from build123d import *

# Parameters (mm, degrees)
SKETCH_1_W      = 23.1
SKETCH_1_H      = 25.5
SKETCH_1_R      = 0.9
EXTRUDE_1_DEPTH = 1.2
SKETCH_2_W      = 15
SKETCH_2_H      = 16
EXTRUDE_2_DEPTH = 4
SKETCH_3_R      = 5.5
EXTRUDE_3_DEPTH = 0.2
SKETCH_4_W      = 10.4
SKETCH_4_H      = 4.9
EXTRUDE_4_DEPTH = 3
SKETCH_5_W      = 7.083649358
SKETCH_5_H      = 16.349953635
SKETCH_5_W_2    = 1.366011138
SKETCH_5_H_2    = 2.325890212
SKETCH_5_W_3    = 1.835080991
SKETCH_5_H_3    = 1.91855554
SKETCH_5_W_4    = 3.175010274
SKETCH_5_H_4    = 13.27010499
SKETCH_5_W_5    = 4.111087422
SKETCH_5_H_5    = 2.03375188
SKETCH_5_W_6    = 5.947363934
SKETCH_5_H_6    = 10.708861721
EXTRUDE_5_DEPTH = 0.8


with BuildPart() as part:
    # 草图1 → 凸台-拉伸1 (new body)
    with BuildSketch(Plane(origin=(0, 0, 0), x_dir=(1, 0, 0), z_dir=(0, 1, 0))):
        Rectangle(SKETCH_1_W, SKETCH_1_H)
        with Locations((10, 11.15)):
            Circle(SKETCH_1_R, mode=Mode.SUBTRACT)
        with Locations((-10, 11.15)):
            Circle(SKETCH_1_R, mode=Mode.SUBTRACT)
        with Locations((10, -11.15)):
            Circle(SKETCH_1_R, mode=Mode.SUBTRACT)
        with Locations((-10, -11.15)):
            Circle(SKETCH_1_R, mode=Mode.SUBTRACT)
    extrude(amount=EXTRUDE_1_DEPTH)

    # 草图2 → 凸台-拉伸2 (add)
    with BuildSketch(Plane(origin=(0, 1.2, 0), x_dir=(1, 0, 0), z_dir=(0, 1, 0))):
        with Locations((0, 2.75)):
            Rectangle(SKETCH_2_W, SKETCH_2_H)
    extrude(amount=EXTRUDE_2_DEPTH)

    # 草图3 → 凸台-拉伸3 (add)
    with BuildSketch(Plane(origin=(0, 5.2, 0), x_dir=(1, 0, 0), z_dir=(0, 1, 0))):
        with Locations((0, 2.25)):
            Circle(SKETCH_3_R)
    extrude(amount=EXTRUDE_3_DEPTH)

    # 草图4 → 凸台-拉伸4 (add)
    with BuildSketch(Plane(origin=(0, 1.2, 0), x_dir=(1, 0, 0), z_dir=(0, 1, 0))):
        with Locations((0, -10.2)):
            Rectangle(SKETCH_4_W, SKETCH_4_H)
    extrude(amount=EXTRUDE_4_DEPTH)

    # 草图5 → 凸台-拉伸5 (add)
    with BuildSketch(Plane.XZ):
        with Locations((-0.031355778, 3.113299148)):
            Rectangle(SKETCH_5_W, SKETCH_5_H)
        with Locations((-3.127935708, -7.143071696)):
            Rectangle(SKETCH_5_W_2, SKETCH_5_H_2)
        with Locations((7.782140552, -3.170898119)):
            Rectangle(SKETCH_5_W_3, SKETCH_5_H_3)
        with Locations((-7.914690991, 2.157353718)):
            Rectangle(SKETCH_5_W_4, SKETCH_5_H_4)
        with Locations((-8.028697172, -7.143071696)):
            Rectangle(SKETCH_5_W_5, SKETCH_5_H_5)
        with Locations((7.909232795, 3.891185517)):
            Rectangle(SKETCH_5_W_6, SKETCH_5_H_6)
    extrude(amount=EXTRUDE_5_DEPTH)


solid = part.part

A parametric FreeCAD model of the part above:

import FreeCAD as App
import Part
import Sketcher
from FreeCAD import Vector


def add_polygon(sketch, points):
    """Adds a closed chain of lines whose ends are joined by coincident constraints."""
    first, n = sketch.GeometryCount, len(points)
    for a, b in zip(points, points[1:] + points[:1]):
        sketch.addGeometry(Part.LineSegment(App.Vector(*a, 0), App.Vector(*b, 0)), False)
    for i in range(n):
        sketch.addConstraint(Sketcher.Constraint("Coincident", first + i, 2, first + (i + 1) % n, 1))

doc = App.newDocument("Part")
params = doc.addObject("Spreadsheet::Sheet", "Params")
for row, (alias, value) in enumerate([
    ("sketch1_diameter", "1.8 mm"),
    ("sketch1_width", "23.1 mm"),
    ("sketch1_height", "25.5 mm"),
    ("pad1_length", "1.2 mm"),
    ("sketch2_width", "15 mm"),
    ("sketch2_height", "16 mm"),
    ("pad2_length", "4 mm"),
    ("sketch3_diameter", "11 mm"),
    ("pad3_length", "0.2 mm"),
    ("sketch4_width", "10.4 mm"),
    ("sketch4_height", "4.9 mm"),
    ("pad4_length", "3 mm"),
    ("pad5_length", "0.8 mm"),
], start=1):
    params.set(f"A{row}", alias)
    params.set(f"B{row}", "=" + value)
    params.setAlias(f"B{row}", alias)

body = doc.addObject("PartDesign::Body", "Body")

# Sketch on XZ plane
sketch1 = doc.addObject("Sketcher::SketchObject", "Sketch")
body.addObject(sketch1)
sketch1.AttachmentSupport = (doc.XZ_Plane, [""])
sketch1.MapMode = "FlatFace"
add_polygon(sketch1, [(-11.55, -12.75), (-11.55, 12.75), (11.55, 12.75), (11.55, -12.75)])  # lines 0-3
sketch1.addGeometry(Part.Circle(Vector(-10, 11.15, 0), Vector(0, 0, 1), 0.9), False)  # 4
sketch1.addGeometry(Part.Circle(Vector(10, 11.15, 0), Vector(0, 0, 1), 0.9), False)  # 5
sketch1.addGeometry(Part.Circle(Vector(-10, -11.15, 0), Vector(0, 0, 1), 0.9), False)  # 6
sketch1.addGeometry(Part.Circle(Vector(10, -11.15, 0), Vector(0, 0, 1), 0.9), False)  # 7
sketch1.addConstraint(Sketcher.Constraint("Vertical", 0))
sketch1.addConstraint(Sketcher.Constraint("Horizontal", 1))
sketch1.addConstraint(Sketcher.Constraint("Vertical", 2))
sketch1.addConstraint(Sketcher.Constraint("Horizontal", 3))
sketch1.addConstraint(Sketcher.Constraint("Equal", 4, 5))
sketch1.addConstraint(Sketcher.Constraint("Equal", 5, 6))
sketch1.addConstraint(Sketcher.Constraint("Equal", 6, 7))
sketch1.addConstraint(Sketcher.Constraint("Symmetric", 5, 3, 6, 3, -1, 1))
sketch1.addConstraint(Sketcher.Constraint("Symmetric", 4, 3, 7, 3, -1, 1))
sketch1.addConstraint(Sketcher.Constraint("Symmetric", 0, 2, 2, 2, -1, 1))
sketch1.addConstraint(Sketcher.Constraint("Symmetric", 4, 3, 5, 3, -2))
sketch1.addConstraint(Sketcher.Constraint("Diameter", 4, 1.8))
sketch1.addConstraint(Sketcher.Constraint("DistanceX", 1, 1, 1, 2, 23.1))
sketch1.addConstraint(Sketcher.Constraint("DistanceY", 0, 1, 0, 2, 25.5))
sketch1.addConstraint(Sketcher.Constraint("DistanceX", 4, 3, -1, 1, 10.0))
sketch1.addConstraint(Sketcher.Constraint("DistanceY", 6, 3, 4, 3, 22.3))
sketch1.setExpression("Constraints[15]", "Params.sketch1_diameter")
sketch1.setExpression("Constraints[16]", "Params.sketch1_width")
sketch1.setExpression("Constraints[17]", "Params.sketch1_height")
pad1 = doc.addObject("PartDesign::Pad", "Pad")
body.addObject(pad1)
pad1.Profile = sketch1
pad1.setExpression("Length", "Params.pad1_length")
pad1.Reversed = True

# Sketch on XZ plane
sketch2 = doc.addObject("Sketcher::SketchObject", "Sketch001")
body.addObject(sketch2)
sketch2.AttachmentSupport = (doc.XZ_Plane, [""])
sketch2.MapMode = "FlatFace"
sketch2.AttachmentOffset = App.Placement(Vector(0, 0, -1.2), App.Rotation())
add_polygon(sketch2, [(-7.5, -10.75), (-7.5, 5.25), (7.5, 5.25), (7.5, -10.75)])  # lines 0-3
sketch2.addConstraint(Sketcher.Constraint("Vertical", 0))
sketch2.addConstraint(Sketcher.Constraint("Horizontal", 1))
sketch2.addConstraint(Sketcher.Constraint("Vertical", 2))
sketch2.addConstraint(Sketcher.Constraint("Horizontal", 3))
sketch2.addConstraint(Sketcher.Constraint("DistanceX", 1, 1, 1, 2, 15.0))
sketch2.addConstraint(Sketcher.Constraint("DistanceY", 0, 1, 0, 2, 16.0))
sketch2.addConstraint(Sketcher.Constraint("DistanceX", 0, 2, -1, 1, 7.5))
sketch2.addConstraint(Sketcher.Constraint("DistanceY", -1, 1, 0, 2, 5.25))
sketch2.setExpression("Constraints[8]", "Params.sketch2_width")
sketch2.setExpression("Constraints[9]", "Params.sketch2_height")
pad2 = doc.addObject("PartDesign::Pad", "Pad001")
body.addObject(pad2)
pad2.Profile = sketch2
pad2.setExpression("Length", "Params.pad2_length")
pad2.Reversed = True

# Sketch on XZ plane
sketch3 = doc.addObject("Sketcher::SketchObject", "Sketch002")
body.addObject(sketch3)
sketch3.AttachmentSupport = (doc.XZ_Plane, [""])
sketch3.MapMode = "FlatFace"
sketch3.AttachmentOffset = App.Placement(Vector(0, 0, -5.2), App.Rotation())
sketch3.addGeometry(Part.Circle(Vector(0, -2.25, 0), Vector(0, 0, 1), 5.5), False)
sketch3.addConstraint(Sketcher.Constraint("PointOnObject", 0, 3, -2))
sketch3.addConstraint(Sketcher.Constraint("Diameter", 0, 11.0))
sketch3.addConstraint(Sketcher.Constraint("DistanceY", 0, 3, -1, 1, 2.25))
sketch3.setExpression("Constraints[1]", "Params.sketch3_diameter")
pad3 = doc.addObject("PartDesign::Pad", "Pad002")
body.addObject(pad3)
pad3.Profile = sketch3
pad3.setExpression("Length", "Params.pad3_length")
pad3.Reversed = True

# Sketch on XZ plane
sketch4 = doc.addObject("Sketcher::SketchObject", "Sketch003")
body.addObject(sketch4)
sketch4.AttachmentSupport = (doc.XZ_Plane, [""])
sketch4.MapMode = "FlatFace"
sketch4.AttachmentOffset = App.Placement(Vector(0, 0, -1.2), App.Rotation())
add_polygon(sketch4, [(-5.2, 7.75), (-5.2, 12.65), (5.2, 12.65), (5.2, 7.75)])  # lines 0-3
sketch4.addConstraint(Sketcher.Constraint("Vertical", 0))
sketch4.addConstraint(Sketcher.Constraint("Horizontal", 1))
sketch4.addConstraint(Sketcher.Constraint("Vertical", 2))
sketch4.addConstraint(Sketcher.Constraint("Horizontal", 3))
sketch4.addConstraint(Sketcher.Constraint("DistanceX", 1, 1, 1, 2, 10.4))
sketch4.addConstraint(Sketcher.Constraint("DistanceY", 0, 1, 0, 2, 4.9))
sketch4.addConstraint(Sketcher.Constraint("DistanceX", 0, 2, -1, 1, 5.2))
sketch4.addConstraint(Sketcher.Constraint("DistanceY", -1, 1, 0, 2, 12.65))
sketch4.setExpression("Constraints[8]", "Params.sketch4_width")
sketch4.setExpression("Constraints[9]", "Params.sketch4_height")
pad4 = doc.addObject("PartDesign::Pad", "Pad003")
body.addObject(pad4)
pad4.Profile = sketch4
pad4.setExpression("Length", "Params.pad4_length")
pad4.Reversed = True

# Sketch on XZ plane
sketch5 = doc.addObject("Sketcher::SketchObject", "Sketch004")
body.addObject(sketch5)
sketch5.AttachmentSupport = (doc.XZ_Plane, [""])
sketch5.MapMode = "FlatFace"
add_polygon(sketch5, [(-3.57318, 11.288276), (-3.57318, -5.061678), (3.510469, -5.061678), (3.510469, 11.288276)])  # lines 0-3
add_polygon(sketch5, [(-3.810941, -5.980127), (-3.810941, -8.306017), (-2.44493, -8.306017), (-2.44493, -5.980127)])  # lines 4-7
add_polygon(sketch5, [(6.8646, -2.21162), (6.8646, -4.130176), (8.699681, -4.130176), (8.699681, -2.21162)])  # lines 8-11
add_polygon(sketch5, [(-9.502196, 8.792406), (-9.502196, -4.477699), (-6.327186, -4.477699), (-6.327186, 8.792406)])  # lines 12-15
add_polygon(sketch5, [(-10.084241, -6.126196), (-10.084241, -8.159948), (-5.973153, -8.159948), (-5.973153, -6.126196)])  # lines 16-19
add_polygon(sketch5, [(4.935551, 9.245616), (4.935551, -1.463245), (10.882915, -1.463245), (10.882915, 9.245616)])  # lines 20-23
sketch5.addConstraint(Sketcher.Constraint("Vertical", 0))
sketch5.addConstraint(Sketcher.Constraint("Horizontal", 1))
sketch5.addConstraint(Sketcher.Constraint("Vertical", 2))
sketch5.addConstraint(Sketcher.Constraint("Horizontal", 3))
sketch5.addConstraint(Sketcher.Constraint("Vertical", 4))
sketch5.addConstraint(Sketcher.Constraint("Horizontal", 5))
sketch5.addConstraint(Sketcher.Constraint("Vertical", 6))
sketch5.addConstraint(Sketcher.Constraint("Horizontal", 7))
sketch5.addConstraint(Sketcher.Constraint("Vertical", 8))
sketch5.addConstraint(Sketcher.Constraint("Horizontal", 9))
sketch5.addConstraint(Sketcher.Constraint("Vertical", 10))
sketch5.addConstraint(Sketcher.Constraint("Horizontal", 11))
sketch5.addConstraint(Sketcher.Constraint("Vertical", 12))
sketch5.addConstraint(Sketcher.Constraint("Horizontal", 13))
sketch5.addConstraint(Sketcher.Constraint("Vertical", 14))
sketch5.addConstraint(Sketcher.Constraint("Horizontal", 15))
sketch5.addConstraint(Sketcher.Constraint("Vertical", 16))
sketch5.addConstraint(Sketcher.Constraint("Horizontal", 17))
sketch5.addConstraint(Sketcher.Constraint("Vertical", 18))
sketch5.addConstraint(Sketcher.Constraint("Horizontal", 19))
sketch5.addConstraint(Sketcher.Constraint("Vertical", 20))
sketch5.addConstraint(Sketcher.Constraint("Horizontal", 21))
sketch5.addConstraint(Sketcher.Constraint("Vertical", 22))
sketch5.addConstraint(Sketcher.Constraint("Horizontal", 23))
sketch5.addConstraint(Sketcher.Constraint("DistanceX", 1, 1, 1, 2, 7.083649))
sketch5.addConstraint(Sketcher.Constraint("DistanceX", 5, 1, 5, 2, 1.366011))
sketch5.addConstraint(Sketcher.Constraint("DistanceX", 9, 1, 9, 2, 1.835081))
sketch5.addConstraint(Sketcher.Constraint("DistanceX", 13, 1, 13, 2, 3.17501))
sketch5.addConstraint(Sketcher.Constraint("DistanceY", 4, 2, 4, 1, 2.32589))
sketch5.addConstraint(Sketcher.Constraint("DistanceY", 16, 2, 16, 1, 2.033752))
sketch5.addConstraint(Sketcher.Constraint("DistanceY", 20, 2, 20, 1, 10.708862))
sketch5.addConstraint(Sketcher.Constraint("DistanceX", -1, 1, 8, 2, 6.8646))
sketch5.addConstraint(Sketcher.Constraint("DistanceY", 12, 2, -1, 1, 4.477699))
sketch5.addConstraint(Sketcher.Constraint("DistanceX", 5, 2, 1, 2, 5.955399))
sketch5.addConstraint(Sketcher.Constraint("DistanceY", 1, 2, 8, 2, 0.931502))
sketch5.addConstraint(Sketcher.Constraint("DistanceX", 16, 2, 4, 2, 6.2733))
sketch5.addConstraint(Sketcher.Constraint("DistanceX", 17, 1, 17, 2, 4.111087))
sketch5.addConstraint(Sketcher.Constraint("DistanceX", 21, 1, 21, 2, 5.947364))
sketch5.addConstraint(Sketcher.Constraint("DistanceY", 0, 2, 0, 1, 16.349954))
sketch5.addConstraint(Sketcher.Constraint("DistanceY", 8, 2, 8, 1, 1.918556))
sketch5.addConstraint(Sketcher.Constraint("DistanceY", 12, 2, 12, 1, 13.270105))
sketch5.addConstraint(Sketcher.Constraint("DistanceX", 0, 2, -1, 1, 3.57318))
sketch5.addConstraint(Sketcher.Constraint("DistanceY", 10, 2, -1, 1, 2.21162))
sketch5.addConstraint(Sketcher.Constraint("DistanceX", -1, 1, 20, 2, 4.935551))
sketch5.addConstraint(Sketcher.Constraint("DistanceY", 4, 2, 0, 2, 3.244339))
sketch5.addConstraint(Sketcher.Constraint("DistanceY", 16, 2, 12, 2, 3.682249))
sketch5.addConstraint(Sketcher.Constraint("DistanceY", 8, 2, 20, 2, 2.666931))
sketch5.addConstraint(Sketcher.Constraint("DistanceX", 12, 2, -1, 1, 9.502196))
pad5 = doc.addObject("PartDesign::Pad", "Pad004")
body.addObject(pad5)
pad5.Profile = sketch5
pad5.setExpression("Length", "Params.pad5_length")

doc.recompute()
